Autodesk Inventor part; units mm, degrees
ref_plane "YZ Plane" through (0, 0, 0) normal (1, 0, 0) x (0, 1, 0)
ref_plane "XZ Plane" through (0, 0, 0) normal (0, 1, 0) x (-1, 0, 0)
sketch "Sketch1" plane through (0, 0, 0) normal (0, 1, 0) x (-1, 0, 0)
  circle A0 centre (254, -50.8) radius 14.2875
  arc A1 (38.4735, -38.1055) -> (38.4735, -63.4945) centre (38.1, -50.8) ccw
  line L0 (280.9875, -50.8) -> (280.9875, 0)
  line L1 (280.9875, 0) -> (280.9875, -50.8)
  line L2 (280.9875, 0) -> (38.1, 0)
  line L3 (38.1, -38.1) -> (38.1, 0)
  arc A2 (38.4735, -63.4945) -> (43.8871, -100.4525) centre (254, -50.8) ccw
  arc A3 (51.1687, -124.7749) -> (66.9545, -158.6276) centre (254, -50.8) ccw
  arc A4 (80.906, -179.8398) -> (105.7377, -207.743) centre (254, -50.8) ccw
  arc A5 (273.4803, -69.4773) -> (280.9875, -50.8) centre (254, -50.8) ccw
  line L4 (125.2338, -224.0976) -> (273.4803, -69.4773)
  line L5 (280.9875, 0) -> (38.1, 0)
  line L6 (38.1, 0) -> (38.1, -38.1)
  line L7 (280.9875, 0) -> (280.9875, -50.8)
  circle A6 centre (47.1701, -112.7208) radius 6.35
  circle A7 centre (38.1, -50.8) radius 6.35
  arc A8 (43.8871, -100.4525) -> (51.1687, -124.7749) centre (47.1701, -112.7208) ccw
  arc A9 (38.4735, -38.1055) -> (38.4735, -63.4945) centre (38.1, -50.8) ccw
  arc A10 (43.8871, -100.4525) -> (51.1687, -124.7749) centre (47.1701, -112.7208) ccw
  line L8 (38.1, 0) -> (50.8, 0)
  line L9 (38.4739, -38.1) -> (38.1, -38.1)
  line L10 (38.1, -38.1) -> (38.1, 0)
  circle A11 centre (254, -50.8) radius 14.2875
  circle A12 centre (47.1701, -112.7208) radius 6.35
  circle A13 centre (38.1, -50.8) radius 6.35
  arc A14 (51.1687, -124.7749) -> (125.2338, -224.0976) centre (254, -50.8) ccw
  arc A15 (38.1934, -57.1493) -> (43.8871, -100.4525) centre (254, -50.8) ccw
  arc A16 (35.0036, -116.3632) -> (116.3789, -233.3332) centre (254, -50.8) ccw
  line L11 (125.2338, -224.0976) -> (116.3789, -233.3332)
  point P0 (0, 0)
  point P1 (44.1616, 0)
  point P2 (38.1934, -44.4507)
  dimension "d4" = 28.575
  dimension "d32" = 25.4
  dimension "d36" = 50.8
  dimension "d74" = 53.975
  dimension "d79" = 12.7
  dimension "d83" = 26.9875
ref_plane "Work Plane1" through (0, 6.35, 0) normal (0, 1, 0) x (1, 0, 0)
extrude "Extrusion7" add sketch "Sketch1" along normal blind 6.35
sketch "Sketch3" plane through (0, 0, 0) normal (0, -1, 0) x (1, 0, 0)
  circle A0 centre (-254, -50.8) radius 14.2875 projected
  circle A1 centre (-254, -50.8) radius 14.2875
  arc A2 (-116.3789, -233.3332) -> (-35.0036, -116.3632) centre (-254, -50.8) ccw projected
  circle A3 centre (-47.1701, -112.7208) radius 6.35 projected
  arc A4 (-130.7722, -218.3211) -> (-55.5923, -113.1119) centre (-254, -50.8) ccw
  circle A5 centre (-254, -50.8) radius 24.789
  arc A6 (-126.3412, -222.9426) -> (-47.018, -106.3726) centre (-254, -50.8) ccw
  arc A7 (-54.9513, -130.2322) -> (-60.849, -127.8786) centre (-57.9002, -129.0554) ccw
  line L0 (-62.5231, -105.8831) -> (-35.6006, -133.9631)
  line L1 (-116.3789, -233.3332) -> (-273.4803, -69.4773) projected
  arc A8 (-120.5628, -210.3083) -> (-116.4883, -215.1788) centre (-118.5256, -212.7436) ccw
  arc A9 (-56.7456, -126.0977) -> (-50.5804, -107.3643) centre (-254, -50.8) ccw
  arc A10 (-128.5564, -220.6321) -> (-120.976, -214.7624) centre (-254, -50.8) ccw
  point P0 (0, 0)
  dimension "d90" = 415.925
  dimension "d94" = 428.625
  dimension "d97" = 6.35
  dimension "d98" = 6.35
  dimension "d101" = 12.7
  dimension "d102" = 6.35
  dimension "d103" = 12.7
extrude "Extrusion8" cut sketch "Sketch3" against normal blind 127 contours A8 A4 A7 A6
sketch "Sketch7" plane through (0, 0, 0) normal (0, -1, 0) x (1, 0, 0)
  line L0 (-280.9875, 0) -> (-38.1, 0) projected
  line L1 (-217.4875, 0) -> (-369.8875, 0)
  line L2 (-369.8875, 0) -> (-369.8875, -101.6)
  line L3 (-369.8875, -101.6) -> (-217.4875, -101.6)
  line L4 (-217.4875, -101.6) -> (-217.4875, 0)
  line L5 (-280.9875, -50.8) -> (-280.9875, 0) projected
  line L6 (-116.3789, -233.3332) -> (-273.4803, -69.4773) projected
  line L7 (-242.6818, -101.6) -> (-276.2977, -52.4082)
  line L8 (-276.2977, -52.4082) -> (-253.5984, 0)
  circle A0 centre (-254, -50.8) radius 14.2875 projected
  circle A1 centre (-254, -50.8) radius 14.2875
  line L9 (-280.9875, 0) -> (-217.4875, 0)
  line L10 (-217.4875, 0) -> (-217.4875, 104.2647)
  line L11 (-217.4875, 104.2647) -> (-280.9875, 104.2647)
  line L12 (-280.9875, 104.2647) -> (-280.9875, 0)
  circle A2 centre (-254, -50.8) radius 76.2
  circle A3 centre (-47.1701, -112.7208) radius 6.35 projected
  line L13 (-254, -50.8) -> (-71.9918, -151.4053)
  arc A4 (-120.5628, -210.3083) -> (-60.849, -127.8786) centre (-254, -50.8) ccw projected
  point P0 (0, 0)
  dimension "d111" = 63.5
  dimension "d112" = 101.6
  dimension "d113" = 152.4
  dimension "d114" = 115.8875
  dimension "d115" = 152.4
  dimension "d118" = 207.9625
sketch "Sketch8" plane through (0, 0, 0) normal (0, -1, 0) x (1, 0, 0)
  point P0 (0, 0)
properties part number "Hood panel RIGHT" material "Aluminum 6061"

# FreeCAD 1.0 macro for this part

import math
import FreeCAD as App
import Part
import Sketcher
Q = App.Units.Quantity

doc = App.newDocument("Part")
body = doc.addObject("PartDesign::Body", "Body")

# Sketch on XZ plane
sketch1 = body.newObject("Sketcher::SketchObject", "Sketch")
sketch1.AttachmentSupport = (doc.getObject("XZ_Plane"), [""])
sketch1.MapMode = "FlatFace"
sketch1.addGeometry(Part.LineSegment(App.Vector(-38.1, 0, 0), App.Vector(-38.1, -38.1, 0)), False)
sketch1.addGeometry(Part.ArcOfCircle(Part.Circle(App.Vector(-38.1, -50.8, 0), App.Vector(0, 0, 1), 12.699993), math.radians(-91.685281), math.radians(90)), False)
sketch1.addGeometry(Part.ArcOfCircle(Part.Circle(App.Vector(-253.993532, -50.800663, 0), App.Vector(0, 0, 1), 215.893533), math.radians(-13.296069), math.radians(-3.370749)), False)
sketch1.addGeometry(Part.ArcOfCircle(Part.Circle(App.Vector(-47.1701, -112.7208, 0), App.Vector(0, 0, 1), 12.699971), math.radians(-16.666619), math.radians(75.018656)), False)
sketch1.addGeometry(Part.ArcOfCircle(Part.Circle(App.Vector(-254, -50.8, 0), App.Vector(0, 0, 1), 228.599992), math.radians(-52.985494), math.radians(-16.666662)), False)
sketch1.addGeometry(Part.LineSegment(App.Vector(-116.3789, -233.3332, 0), App.Vector(-125.2338, -224.0976, 0)), False)
sketch1.addGeometry(Part.LineSegment(App.Vector(-125.2338, -224.0976, 0), App.Vector(-273.4803, -69.4773, 0)), False)
sketch1.addGeometry(Part.ArcOfCircle(Part.Circle(App.Vector(-254, -50.8, 0), App.Vector(0, 0, 1), 26.987472), math.radians(180), math.radians(223.794428)), False)
sketch1.addGeometry(Part.LineSegment(App.Vector(-280.9875, -50.8, 0), App.Vector(-280.9875, 0, 0)), False)
sketch1.addGeometry(Part.LineSegment(App.Vector(-280.9875, 0, 0), App.Vector(-38.1, 0, 0)), False)
sketch1.addGeometry(Part.Circle(App.Vector(-47.1701, -112.7208, 0), App.Vector(0, 0, 1), 6.35), False)
sketch1.addGeometry(Part.Circle(App.Vector(-38.1, -50.8, 0), App.Vector(0, 0, 1), 6.35), False)
sketch1.addGeometry(Part.Circle(App.Vector(-254, -50.8, 0), App.Vector(0, 0, 1), 14.2875), False)
sketch1.addConstraint(Sketcher.Constraint("Coincident", 0, 2, 1, 2))
sketch1.addConstraint(Sketcher.Constraint("Coincident", 1, 1, 2, 2))
sketch1.addConstraint(Sketcher.Constraint("Coincident", 2, 1, 3, 2))
sketch1.addConstraint(Sketcher.Constraint("Coincident", 3, 1, 4, 2))
sketch1.addConstraint(Sketcher.Constraint("Coincident", 4, 1, 5, 1))
sketch1.addConstraint(Sketcher.Constraint("Coincident", 5, 2, 6, 1))
sketch1.addConstraint(Sketcher.Constraint("Coincident", 6, 2, 7, 2))
sketch1.addConstraint(Sketcher.Constraint("Coincident", 7, 1, 8, 1))
sketch1.addConstraint(Sketcher.Constraint("Coincident", 8, 2, 9, 1))
sketch1.addConstraint(Sketcher.Constraint("Coincident", 9, 2, 0, 1))
sketch1.addConstraint(Sketcher.Constraint("Vertical", 0))
sketch1.addConstraint(Sketcher.Constraint("Vertical", 8))
sketch1.addConstraint(Sketcher.Constraint("Horizontal", 9))
sketch1.addConstraint(Sketcher.Constraint("Coincident", 7, 3, 4, 3))
sketch1.addConstraint(Sketcher.Constraint("Coincident", 10, 3, 3, 3))
sketch1.addConstraint(Sketcher.Constraint("Coincident", 11, 3, 1, 3))
sketch1.addConstraint(Sketcher.Constraint("Coincident", 12, 3, 4, 3))
sketch1.addConstraint(Sketcher.Constraint("PointOnObject", 8, 2, -1))
sketch1.addConstraint(Sketcher.Constraint("Diameter", 10, Q("0.5 in")))
sketch1.addConstraint(Sketcher.Constraint("Diameter", 11, Q("0.5 in")))
sketch1.addConstraint(Sketcher.Constraint("Radius", 1, Q("0.5 in")))
sketch1.addConstraint(Sketcher.Constraint("Radius", 3, Q("0.5 in")))
sketch1.addConstraint(Sketcher.Constraint("DistanceY", 8, 1, 8, 2, Q("2 in")))
sketch1.addConstraint(Sketcher.Constraint("Diameter", 12, Q("1.125 in")))
sketch1.addConstraint(Sketcher.Constraint("DistanceY", 1, 3, -1, 1, Q("2 in")))
sketch1.addConstraint(Sketcher.Constraint("DistanceY", 4, 3, -1, 1, Q("2 in")))
sketch1.addConstraint(Sketcher.Constraint("Radius", 4, Q("9 in")))
sketch1.addConstraint(Sketcher.Constraint("Radius", 7, Q("1.0625 in")))
sketch1.addConstraint(Sketcher.Constraint("DistanceX", 4, 3, -1, 1, Q("10 in")))
sketch1.addConstraint(Sketcher.Constraint("DistanceX", 1, 3, -1, 1, Q("1.5 in")))
sketch1.addConstraint(Sketcher.Constraint("DistanceX", 0, 2, -1, 1, Q("1.5 in")))
sketch1.addConstraint(Sketcher.Constraint("Radius", 2, Q("215.8935 mm")))
sketch1.addConstraint(Sketcher.Constraint("DistanceX", 3, 3, 3, 1, Q("0.479 in")))
sketch1.addConstraint(Sketcher.Constraint("DistanceX", 4, 1, 2, 1, Q("2.854 in")))
sketch1.addConstraint(Sketcher.Constraint("DistanceX", 3, 3, -1, 1, Q("1.8571 in")))
sketch1.addConstraint(Sketcher.Constraint("DistanceX", 1, 1, -1, 1, Q("1.5147 in")))
sketch1.addConstraint(Sketcher.Constraint("DistanceY", 3, 3, 2, 3, Q("2.4378 in")))
sketch1.addConstraint(Sketcher.Constraint("DistanceY", 4, 1, 5, 2, Q("0.3636 in")))
sketch1.addConstraint(Sketcher.Constraint("DistanceX", 6, 2, 2, 3, Q("0.7672 in")))
sketch1.addConstraint(Sketcher.Constraint("Distance", 5, Q("12.7947 mm")))
pad1 = body.newObject("PartDesign::Pad", "Pad")
pad1.Profile = sketch1
pad1.Length = Q("0.25 in")
pad1.Reversed = True

# Sketch on XZ plane
sketch2 = body.newObject("Sketcher::SketchObject", "Sketch001")
sketch2.AttachmentSupport = (doc.getObject("XZ_Plane"), [""])
sketch2.MapMode = "FlatFace"
sketch2.addGeometry(Part.ArcOfCircle(Part.Circle(App.Vector(-118.5256, -212.7436, 0), App.Vector(0, 0, 1), 3.175039), math.radians(129.913472), math.radians(309.916014)), False)
sketch2.addGeometry(Part.ArcOfCircle(Part.Circle(App.Vector(-254, -50.8, 0), App.Vector(0, 0, 1), 214.312491), math.radians(-50.085707), math.radians(-21.754922)), False)
sketch2.addGeometry(Part.ArcOfCircle(Part.Circle(App.Vector(-57.9002, -129.0554, 0), App.Vector(0, 0, 1), 3.175038), math.radians(-21.755166), math.radians(158.244165)), False)
sketch2.addGeometry(Part.ArcOfCircle(Part.Circle(App.Vector(-254, -50.8, 0), App.Vector(0, 0, 1), 207.96252), math.radians(-50.08572), math.radians(-21.754904)), False)
sketch2.addConstraint(Sketcher.Constraint("Tangent", 0, 2, 1, 1))
sketch2.addConstraint(Sketcher.Constraint("Tangent", 1, 2, 2, 1))
sketch2.addConstraint(Sketcher.Constraint("Tangent", 2, 2, 3, 2))
sketch2.addConstraint(Sketcher.Constraint("Tangent", 3, 1, 0, 1))
sketch2.addConstraint(Sketcher.Constraint("Coincident", 3, 3, 1, 3))
sketch2.addConstraint(Sketcher.Constraint("Radius", 0, Q("0.125 in")))
sketch2.addConstraint(Sketcher.Constraint("Radius", 1, Q("8.4375 in")))
sketch2.addConstraint(Sketcher.Constraint("DistanceX", 1, 3, -1, 1, Q("10 in")))
sketch2.addConstraint(Sketcher.Constraint("DistanceY", 1, 3, -1, 1, Q("2 in")))
sketch2.addConstraint(Sketcher.Constraint("DistanceY", 0, 2, -1, 1, Q("8.4716 in")))
sketch2.addConstraint(Sketcher.Constraint("DistanceY", 2, 2, -1, 1, Q("5.0346 in")))
pocket1 = body.newObject("PartDesign::Pocket", "Pocket")
pocket1.Profile = sketch2
pocket1.Length = Q("5 in")

doc.recompute()
